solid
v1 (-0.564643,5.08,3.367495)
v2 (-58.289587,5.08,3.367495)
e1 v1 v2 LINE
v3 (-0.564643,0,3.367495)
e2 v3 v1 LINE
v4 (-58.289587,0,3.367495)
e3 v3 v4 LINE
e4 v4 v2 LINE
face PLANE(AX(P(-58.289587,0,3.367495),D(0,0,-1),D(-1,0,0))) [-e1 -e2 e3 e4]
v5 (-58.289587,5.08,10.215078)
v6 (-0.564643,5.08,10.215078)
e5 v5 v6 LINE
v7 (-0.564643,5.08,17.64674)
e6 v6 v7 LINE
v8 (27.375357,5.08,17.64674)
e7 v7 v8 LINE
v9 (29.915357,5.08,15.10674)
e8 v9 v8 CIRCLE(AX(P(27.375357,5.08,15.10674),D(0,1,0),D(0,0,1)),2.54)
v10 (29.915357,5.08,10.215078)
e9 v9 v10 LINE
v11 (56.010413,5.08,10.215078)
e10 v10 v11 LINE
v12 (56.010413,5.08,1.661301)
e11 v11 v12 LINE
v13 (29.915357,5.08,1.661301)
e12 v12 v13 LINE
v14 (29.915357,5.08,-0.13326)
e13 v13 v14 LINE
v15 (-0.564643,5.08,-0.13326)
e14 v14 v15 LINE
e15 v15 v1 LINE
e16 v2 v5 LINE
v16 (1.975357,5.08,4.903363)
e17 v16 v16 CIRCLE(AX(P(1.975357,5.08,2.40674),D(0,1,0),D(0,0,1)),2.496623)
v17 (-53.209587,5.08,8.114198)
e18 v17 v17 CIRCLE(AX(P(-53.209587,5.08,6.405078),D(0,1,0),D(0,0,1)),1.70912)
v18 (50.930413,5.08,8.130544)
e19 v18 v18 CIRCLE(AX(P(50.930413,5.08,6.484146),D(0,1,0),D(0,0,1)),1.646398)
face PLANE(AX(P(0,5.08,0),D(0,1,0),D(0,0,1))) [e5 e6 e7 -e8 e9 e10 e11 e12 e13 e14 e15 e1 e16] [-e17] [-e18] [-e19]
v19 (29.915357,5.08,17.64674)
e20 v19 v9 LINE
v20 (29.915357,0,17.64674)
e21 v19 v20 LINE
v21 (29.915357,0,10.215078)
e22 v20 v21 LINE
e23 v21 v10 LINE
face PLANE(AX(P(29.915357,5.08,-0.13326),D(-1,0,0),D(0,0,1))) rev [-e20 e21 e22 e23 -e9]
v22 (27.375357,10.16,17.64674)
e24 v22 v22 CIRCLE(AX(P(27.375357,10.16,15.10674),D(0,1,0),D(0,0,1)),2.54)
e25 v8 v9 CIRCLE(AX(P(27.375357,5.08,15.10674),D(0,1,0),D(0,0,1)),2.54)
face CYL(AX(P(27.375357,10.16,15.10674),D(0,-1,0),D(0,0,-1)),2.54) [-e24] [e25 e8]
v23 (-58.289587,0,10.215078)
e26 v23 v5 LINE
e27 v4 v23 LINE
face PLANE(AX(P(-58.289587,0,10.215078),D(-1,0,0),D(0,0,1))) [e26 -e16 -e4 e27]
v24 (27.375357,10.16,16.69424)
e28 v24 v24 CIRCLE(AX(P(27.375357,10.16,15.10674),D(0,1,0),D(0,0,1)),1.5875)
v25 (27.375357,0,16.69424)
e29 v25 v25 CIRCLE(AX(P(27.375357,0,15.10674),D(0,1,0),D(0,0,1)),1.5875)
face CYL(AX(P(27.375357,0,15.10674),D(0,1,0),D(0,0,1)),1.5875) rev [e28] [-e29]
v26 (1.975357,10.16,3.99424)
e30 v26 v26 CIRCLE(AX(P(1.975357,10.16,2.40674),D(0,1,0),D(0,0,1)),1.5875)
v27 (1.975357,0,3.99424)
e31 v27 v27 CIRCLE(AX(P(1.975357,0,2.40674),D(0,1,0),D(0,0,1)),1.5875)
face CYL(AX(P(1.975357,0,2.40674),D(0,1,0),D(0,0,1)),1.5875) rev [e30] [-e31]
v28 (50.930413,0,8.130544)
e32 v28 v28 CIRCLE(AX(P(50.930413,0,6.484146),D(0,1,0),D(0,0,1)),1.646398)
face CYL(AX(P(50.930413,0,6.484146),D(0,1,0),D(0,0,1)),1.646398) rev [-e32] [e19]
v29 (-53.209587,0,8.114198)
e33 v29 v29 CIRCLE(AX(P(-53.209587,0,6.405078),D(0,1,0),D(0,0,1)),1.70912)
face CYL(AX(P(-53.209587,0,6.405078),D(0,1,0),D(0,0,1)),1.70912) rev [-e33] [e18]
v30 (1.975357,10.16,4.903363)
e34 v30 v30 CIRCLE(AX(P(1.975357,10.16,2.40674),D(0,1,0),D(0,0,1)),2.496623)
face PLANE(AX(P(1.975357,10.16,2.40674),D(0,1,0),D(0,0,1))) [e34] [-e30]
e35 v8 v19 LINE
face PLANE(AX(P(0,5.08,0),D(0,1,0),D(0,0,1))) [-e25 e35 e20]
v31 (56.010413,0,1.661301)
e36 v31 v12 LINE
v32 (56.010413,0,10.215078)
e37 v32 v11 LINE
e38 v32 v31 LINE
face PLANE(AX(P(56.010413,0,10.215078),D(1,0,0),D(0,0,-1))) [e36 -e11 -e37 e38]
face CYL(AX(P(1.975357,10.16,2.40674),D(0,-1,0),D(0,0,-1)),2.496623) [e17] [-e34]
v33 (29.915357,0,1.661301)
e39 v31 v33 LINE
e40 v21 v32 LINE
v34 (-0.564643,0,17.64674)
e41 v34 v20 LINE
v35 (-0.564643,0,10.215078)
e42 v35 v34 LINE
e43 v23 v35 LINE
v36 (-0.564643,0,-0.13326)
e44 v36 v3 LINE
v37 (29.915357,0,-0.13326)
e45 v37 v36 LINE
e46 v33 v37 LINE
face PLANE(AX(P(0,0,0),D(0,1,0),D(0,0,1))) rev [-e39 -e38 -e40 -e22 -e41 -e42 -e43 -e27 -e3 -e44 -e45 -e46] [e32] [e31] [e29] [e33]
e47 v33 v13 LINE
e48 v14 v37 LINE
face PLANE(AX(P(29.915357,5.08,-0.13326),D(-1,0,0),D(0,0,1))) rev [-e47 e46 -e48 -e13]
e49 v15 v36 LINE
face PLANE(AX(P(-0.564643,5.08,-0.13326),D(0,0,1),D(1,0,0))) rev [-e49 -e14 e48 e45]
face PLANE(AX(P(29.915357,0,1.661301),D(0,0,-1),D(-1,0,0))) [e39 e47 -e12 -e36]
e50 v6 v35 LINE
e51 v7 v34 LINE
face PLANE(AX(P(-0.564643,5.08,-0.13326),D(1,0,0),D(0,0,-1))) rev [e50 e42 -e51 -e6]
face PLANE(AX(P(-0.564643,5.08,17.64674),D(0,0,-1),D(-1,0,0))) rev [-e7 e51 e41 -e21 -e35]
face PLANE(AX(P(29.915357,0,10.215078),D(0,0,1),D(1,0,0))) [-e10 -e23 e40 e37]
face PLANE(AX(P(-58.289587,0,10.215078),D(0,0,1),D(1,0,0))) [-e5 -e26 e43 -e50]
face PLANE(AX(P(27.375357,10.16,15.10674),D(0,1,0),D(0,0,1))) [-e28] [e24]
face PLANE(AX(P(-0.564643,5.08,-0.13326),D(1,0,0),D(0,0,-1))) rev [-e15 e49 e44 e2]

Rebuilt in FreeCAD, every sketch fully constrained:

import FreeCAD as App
import Part
import Sketcher
Q = App.Units.Quantity


def add_polygon(sketch, points):
    """Adds a closed chain of lines whose ends are joined by coincident constraints."""
    first, n = sketch.GeometryCount, len(points)
    for a, b in zip(points, points[1:] + points[:1]):
        sketch.addGeometry(Part.LineSegment(App.Vector(*a, 0), App.Vector(*b, 0)), False)
    for i in range(n):
        sketch.addConstraint(Sketcher.Constraint("Coincident", first + i, 2, first + (i + 1) % n, 1))

doc = App.newDocument("Part")
params = doc.addObject("Spreadsheet::Sheet", "Params")
for row, (alias, value) in enumerate([
    ("sketch1_width", "1.2 in"),
    ("sketch1_height", "0.7 in"),
    ("pad1_length", "0.2 in"),
    ("sketch2_diameter", "0.125 in"),
    ("sketch3_diameter", "0.2 in"),
    ("sketch3_diameter2", "0.125 in"),
    ("pad2_length", "0.2 in"),
    ("pad3_length", "0.2 in"),
    ("pad4_length", "0.2 in"),
], start=1):
    params.set(f"A{row}", alias)
    params.set(f"B{row}", "=" + value)
    params.setAlias(f"B{row}", alias)

body = doc.addObject("PartDesign::Body", "Body")

# Sketch on XZ plane
sketch1 = doc.addObject("Sketcher::SketchObject", "Sketch")
body.addObject(sketch1)
sketch1.AttachmentSupport = (doc.XZ_Plane, [""])
sketch1.MapMode = "FlatFace"
add_polygon(sketch1, [(-1, 0), (-1, 18), (30, 18), (30, 0)])  # lines 0-3
sketch1.addConstraint([
    Sketcher.Constraint("Vertical", 0),
    Sketcher.Constraint("Horizontal", 1),
    Sketcher.Constraint("Vertical", 2),
    Sketcher.Constraint("Horizontal", 3),
    Sketcher.Constraint("DistanceX", 1, 1, 1, 2, Q("1.2 in")),
    Sketcher.Constraint("DistanceY", 0, 1, 0, 2, Q("0.7 in")),
    Sketcher.Constraint("DistanceY", -1, 1, 0, 2, 17.64674),
    Sketcher.Constraint("DistanceX", 0, 2, -1, 1, 0.564643),
])
sketch1.setExpression("Constraints[8]", "Params.sketch1_width")
sketch1.setExpression("Constraints[9]", "Params.sketch1_height")
pad1 = doc.addObject("PartDesign::Pad", "Pad")
body.addObject(pad1)
pad1.Profile = sketch1
pad1.setExpression("Length", "Params.pad1_length")
pad1.Reversed = True

# Sketch on XZ plane
sketch2 = doc.addObject("Sketcher::SketchObject", "Sketch001")
body.addObject(sketch2)
sketch2.AttachmentSupport = (doc.XZ_Plane, [""])
sketch2.MapMode = "FlatFace"
sketch2.AttachmentOffset = App.Placement(App.Vector(0, 0, -0.2 * 25.4), App.Rotation())
sketch2.addGeometry([
    Part.Circle(App.Vector(2, 2.4, 0), App.Vector(0, 0, 1), 1.6),
    Part.Circle(App.Vector(27.4, 15.1, 0), App.Vector(0, 0, 1), 1.6),
], False)
sketch2.addConstraint([
    Sketcher.Constraint("Equal", 0, 1),
    Sketcher.Constraint("Diameter", 0, Q("0.125 in")),
    Sketcher.Constraint("DistanceX", 0, 3, 1, 3, Q("1 in")),
    Sketcher.Constraint("DistanceY", 0, 3, 1, 3, Q("0.5 in")),
    Sketcher.Constraint("DistanceY", -1, 1, 0, 3, 2.40674),
    Sketcher.Constraint("DistanceX", -1, 1, 0, 3, 1.975357),
])
sketch2.setExpression("Constraints[1]", "Params.sketch2_diameter")
pocket1 = doc.addObject("PartDesign::Pocket", "Pocket")
body.addObject(pocket1)
pocket1.Profile = sketch2
pocket1.Type = "ThroughAll"
pocket1.Reversed = True

# Sketch on XZ plane
sketch3 = doc.addObject("Sketcher::SketchObject", "Sketch002")
body.addObject(sketch3)
sketch3.AttachmentSupport = (doc.XZ_Plane, [""])
sketch3.MapMode = "FlatFace"
sketch3.AttachmentOffset = App.Placement(App.Vector(0, 0, -0.4 * 25.4), App.Rotation())
sketch3.addGeometry([
    Part.Circle(App.Vector(2, 2.4, 0), App.Vector(0, 0, 1), 2.5),
    Part.Circle(App.Vector(2, 2.4, 0), App.Vector(0, 0, 1), 1.6),
    Part.Circle(App.Vector(27.4, 15.1, 0), App.Vector(0, 0, 1), 2.5),
    Part.Circle(App.Vector(27.4, 15.1, 0), App.Vector(0, 0, 1), 1.6),
], False)
sketch3.addConstraint([
    Sketcher.Constraint("Coincident", 1, 3, 0, 3),
    Sketcher.Constraint("Coincident", 3, 3, 2, 3),
    Sketcher.Constraint("Equal", 1, 3),
    Sketcher.Constraint("Diameter", 2, Q("0.2 in")),
    Sketcher.Constraint("Diameter", 1, Q("0.125 in")),
    Sketcher.Constraint("DistanceX", 0, 3, 2, 3, Q("1 in")),
    Sketcher.Constraint("DistanceY", 0, 3, 2, 3, Q("0.5 in")),
    Sketcher.Constraint("Diameter", 0, 4.993246),
    Sketcher.Constraint("DistanceY", -1, 1, 0, 3, 2.40674),
    Sketcher.Constraint("DistanceX", -1, 1, 0, 3, 1.975357),
])
sketch3.setExpression("Constraints[3]", "Params.sketch3_diameter")
sketch3.setExpression("Constraints[4]", "Params.sketch3_diameter2")
pad2 = doc.addObject("PartDesign::Pad", "Pad001")
body.addObject(pad2)
pad2.Profile = sketch3
pad2.setExpression("Length", "Params.pad2_length")

# Sketch on XZ plane
sketch4 = doc.addObject("Sketcher::SketchObject", "Sketch003")
body.addObject(sketch4)
sketch4.AttachmentSupport = (doc.XZ_Plane, [""])
sketch4.MapMode = "FlatFace"
sketch4.AttachmentOffset = App.Placement(App.Vector(0, 0, -0.2 * 25.4), App.Rotation())
add_polygon(sketch4, [(29.9, 1.7), (29.9, 10.2), (56, 10.2), (56, 1.7)])  # lines 0-3
sketch4.addGeometry(Part.Circle(App.Vector(50.9, 6.5, 0), App.Vector(0, 0, 1), 1.6), False)  # 4
sketch4.addConstraint([
    Sketcher.Constraint("Vertical", 0),
    Sketcher.Constraint("Horizontal", 1),
    Sketcher.Constraint("Vertical", 2),
    Sketcher.Constraint("Horizontal", 3),
    Sketcher.Constraint("DistanceX", 4, 3, 1, 2, Q("0.2 in")),
    Sketcher.Constraint("Diameter", 4, 3.292797),
    Sketcher.Constraint("DistanceY", -1, 1, 2, 2, 1.661301),
    Sketcher.Constraint("DistanceX", 1, 1, 1, 2, 26.095056),
    Sketcher.Constraint("DistanceY", 0, 1, 0, 2, 8.553777),
    Sketcher.Constraint("DistanceX", -1, 1, 4, 3, 50.930413),
    Sketcher.Constraint("DistanceY", -1, 1, 4, 3, 6.484146),
])
pad3 = doc.addObject("PartDesign::Pad", "Pad002")
body.addObject(pad3)
pad3.Profile = sketch4
pad3.setExpression("Length", "Params.pad3_length")

# Sketch on XZ plane
sketch5 = doc.addObject("Sketcher::SketchObject", "Sketch004")
body.addObject(sketch5)
sketch5.AttachmentSupport = (doc.XZ_Plane, [""])
sketch5.MapMode = "FlatFace"
sketch5.AttachmentOffset = App.Placement(App.Vector(0, 0, -0.2 * 25.4), App.Rotation())
add_polygon(sketch5, [(-58.3, 3.4), (-58.3, 10.2), (-0.3, 10.2), (-0.3, 3.4)])  # lines 0-3
sketch5.addGeometry(Part.Circle(App.Vector(-53.2, 6.4, 0), App.Vector(0, 0, 1), 1.7), False)  # 4
sketch5.addConstraint([
    Sketcher.Constraint("Vertical", 0),
    Sketcher.Constraint("Horizontal", 1),
    Sketcher.Constraint("Vertical", 2),
    Sketcher.Constraint("Horizontal", 3),
    Sketcher.Constraint("DistanceX", 0, 2, 4, 3, Q("0.2 in")),
    Sketcher.Constraint("DistanceY", 4, 3, 0, 2, Q("0.15 in")),
    Sketcher.Constraint("Diameter", 4, 3.418239),
    Sketcher.Constraint("DistanceX", 1, 1, 1, 2, 57.960584),
    Sketcher.Constraint("DistanceY", 0, 1, 0, 2, 6.847583),
    Sketcher.Constraint("DistanceY", -1, 1, 4, 3, 6.405078),
    Sketcher.Constraint("DistanceX", 4, 3, -1, 1, 53.209587),
])
pad4 = doc.addObject("PartDesign::Pad", "Pad003")
body.addObject(pad4)
pad4.Profile = sketch5
pad4.setExpression("Length", "Params.pad4_length")

doc.recompute()
